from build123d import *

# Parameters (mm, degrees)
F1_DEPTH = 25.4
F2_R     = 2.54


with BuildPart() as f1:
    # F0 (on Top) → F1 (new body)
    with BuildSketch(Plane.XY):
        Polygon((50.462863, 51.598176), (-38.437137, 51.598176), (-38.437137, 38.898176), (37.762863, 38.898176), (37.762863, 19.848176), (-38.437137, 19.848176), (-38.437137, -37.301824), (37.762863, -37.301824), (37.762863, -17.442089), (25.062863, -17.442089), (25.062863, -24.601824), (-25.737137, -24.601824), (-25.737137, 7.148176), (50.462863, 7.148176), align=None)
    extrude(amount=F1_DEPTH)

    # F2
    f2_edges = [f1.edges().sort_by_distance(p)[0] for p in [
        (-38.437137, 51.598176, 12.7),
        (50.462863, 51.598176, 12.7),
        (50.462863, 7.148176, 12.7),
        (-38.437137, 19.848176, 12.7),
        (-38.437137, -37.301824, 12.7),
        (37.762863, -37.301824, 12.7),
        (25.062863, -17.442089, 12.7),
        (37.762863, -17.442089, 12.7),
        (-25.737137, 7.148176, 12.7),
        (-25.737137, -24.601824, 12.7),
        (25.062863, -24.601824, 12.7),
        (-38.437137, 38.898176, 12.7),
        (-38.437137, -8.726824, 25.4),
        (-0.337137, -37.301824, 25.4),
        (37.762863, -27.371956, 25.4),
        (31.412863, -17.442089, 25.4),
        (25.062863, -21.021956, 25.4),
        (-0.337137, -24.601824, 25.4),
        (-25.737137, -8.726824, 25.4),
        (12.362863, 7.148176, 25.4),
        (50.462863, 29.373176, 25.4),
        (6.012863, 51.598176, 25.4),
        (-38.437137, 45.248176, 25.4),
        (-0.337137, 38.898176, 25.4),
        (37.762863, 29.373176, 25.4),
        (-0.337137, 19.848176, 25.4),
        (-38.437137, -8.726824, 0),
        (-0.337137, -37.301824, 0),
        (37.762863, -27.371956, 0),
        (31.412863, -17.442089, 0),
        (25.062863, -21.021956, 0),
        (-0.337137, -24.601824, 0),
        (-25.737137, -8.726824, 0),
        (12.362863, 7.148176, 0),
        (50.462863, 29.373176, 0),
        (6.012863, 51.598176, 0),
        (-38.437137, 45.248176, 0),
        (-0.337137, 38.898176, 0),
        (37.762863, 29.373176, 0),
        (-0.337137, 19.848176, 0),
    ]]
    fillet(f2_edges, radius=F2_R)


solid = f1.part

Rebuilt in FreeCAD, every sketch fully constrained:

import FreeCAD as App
import Part
import Sketcher

V = App.Vector
Q = App.Units.Quantity


def edges_at(feature, points):
    """Names of the edges that pass closest to the given points."""
    edges = feature.Shape.Edges
    near = lambda p: min(range(len(edges)), key=lambda i: edges[i].distToShape(Part.Vertex(*p))[0])
    return sorted({f"Edge{near(p) + 1}" for p in points})


def add_polygon(sketch, points):
    """Adds a closed chain of lines whose ends are joined by coincident constraints."""
    first, n = sketch.GeometryCount, len(points)
    for a, b in zip(points, points[1:] + points[:1]):
        sketch.addGeometry(Part.LineSegment(App.Vector(*a, 0), App.Vector(*b, 0)), False)
    for i in range(n):
        sketch.addConstraint(Sketcher.Constraint("Coincident", first + i, 2, first + (i + 1) % n, 1))

doc = App.newDocument("Part")
body = doc.addObject("PartDesign::Body", "Body")

# Sketch on XY plane
sketch1 = doc.addObject("Sketcher::SketchObject", "Sketch")
body.addObject(sketch1)
sketch1.AttachmentSupport = (doc.XY_Plane, [""])
sketch1.MapMode = "FlatFace"
add_polygon(sketch1, [(50, 52), (-38, 52), (-38, 39), (38, 39), (38, 20), (-38, 20), (-38, -37), (38, -37), (38, -17), (25, -17), (25, -25), (-26, -25), (-26, 7), (50, 7)])  # lines 0-13
sketch1.addConstraint(Sketcher.Constraint("Horizontal", 0))
sketch1.addConstraint(Sketcher.Constraint("Vertical", 1))
sketch1.addConstraint(Sketcher.Constraint("Horizontal", 2))
sketch1.addConstraint(Sketcher.Constraint("Vertical", 3))
sketch1.addConstraint(Sketcher.Constraint("Horizontal", 4))
sketch1.addConstraint(Sketcher.Constraint("Vertical", 5))
sketch1.addConstraint(Sketcher.Constraint("Horizontal", 6))
sketch1.addConstraint(Sketcher.Constraint("Vertical", 7))
sketch1.addConstraint(Sketcher.Constraint("Horizontal", 8))
sketch1.addConstraint(Sketcher.Constraint("Vertical", 9))
sketch1.addConstraint(Sketcher.Constraint("Horizontal", 10))
sketch1.addConstraint(Sketcher.Constraint("Vertical", 11))
sketch1.addConstraint(Sketcher.Constraint("Horizontal", 12))
sketch1.addConstraint(Sketcher.Constraint("Vertical", 13))
sketch1.addConstraint(Sketcher.Constraint("Vertical", 1, 2, 4, 2))
sketch1.addConstraint(Sketcher.Constraint("Vertical", 3, 2, 6, 2))
sketch1.addConstraint(Sketcher.Constraint("Equal", 6, 12))
sketch1.addConstraint(Sketcher.Constraint("Equal", 8, 1))
sketch1.addConstraint(Sketcher.Constraint("DistanceX", 2, 1, 2, 2, Q("3 in")))
sketch1.addConstraint(Sketcher.Constraint("DistanceX", 10, 2, 10, 1, Q("2 in")))
sketch1.addConstraint(Sketcher.Constraint("DistanceX", 0, 2, 0, 1, Q("3.5 in")))
sketch1.addConstraint(Sketcher.Constraint("DistanceY", 5, 2, 1, 2, Q("3 in")))
sketch1.addConstraint(Sketcher.Constraint("DistanceY", 3, 2, 3, 1, Q("0.75 in")))
sketch1.addConstraint(Sketcher.Constraint("DistanceY", 11, 1, 11, 2, Q("1.25 in")))
sketch1.addConstraint(Sketcher.Constraint("DistanceY", 13, 1, 13, 2, Q("1.75 in")))
sketch1.addConstraint(Sketcher.Constraint("DistanceY", 7, 1, 7, 2, Q("19.859735 mm")))
sketch1.addConstraint(Sketcher.Constraint("DistanceY", 7, 2, -1, 1, Q("17.442089 mm")))
sketch1.addConstraint(Sketcher.Constraint("DistanceX", 0, 2, -1, 1, Q("38.437137 mm")))
pad1 = doc.addObject("PartDesign::Pad", "Pad")
body.addObject(pad1)
pad1.Profile = sketch1
pad1.Length = Q("1 in")
doc.recompute()

fillet = doc.addObject("PartDesign::Fillet", "Fillet")
body.addObject(fillet)
fillet.Base = (pad1, edges_at(pad1, [
    (-38.437, 51.598, 12.7),
    (50.463, 51.598, 12.7),
    (50.463, 7.148, 12.7),
    (-38.437, 19.848, 12.7),
    (-38.437, -37.302, 12.7),
    (37.763, -37.302, 12.7),
    (25.063, -17.442, 12.7),
    (37.763, -17.442, 12.7),
    (-25.737, 7.148, 12.7),
    (-25.737, -24.602, 12.7),
    (25.063, -24.602, 12.7),
    (-38.437, 38.898, 12.7),
    (-38.437, -8.727, 25.4),
    (-0.337, -37.302, 25.4),
    (37.763, -27.372, 25.4),
    (31.413, -17.442, 25.4),
    (25.063, -21.022, 25.4),
    (-0.337, -24.602, 25.4),
    (-25.737, -8.727, 25.4),
    (12.363, 7.148, 25.4),
    (50.463, 29.373, 25.4),
    (6.013, 51.598, 25.4),
    (-38.437, 45.248, 25.4),
    (-0.337, 38.898, 25.4),
    (37.763, 29.373, 25.4),
    (-0.337, 19.848, 25.4),
    (-38.437, -8.727, 0),
    (-0.337, -37.302, 0),
    (37.763, -27.372, 0),
    (31.413, -17.442, 0),
    (25.063, -21.022, 0),
    (-0.337, -24.602, 0),
    (-25.737, -8.727, 0),
    (12.363, 7.148, 0),
    (50.463, 29.373, 0),
    (6.013, 51.598, 0),
    (-38.437, 45.248, 0),
    (-0.337, 38.898, 0),
    (37.763, 29.373, 0),
    (-0.337, 19.848, 0),
]))
fillet.Radius = Q("0.1 in")

doc.recompute()
